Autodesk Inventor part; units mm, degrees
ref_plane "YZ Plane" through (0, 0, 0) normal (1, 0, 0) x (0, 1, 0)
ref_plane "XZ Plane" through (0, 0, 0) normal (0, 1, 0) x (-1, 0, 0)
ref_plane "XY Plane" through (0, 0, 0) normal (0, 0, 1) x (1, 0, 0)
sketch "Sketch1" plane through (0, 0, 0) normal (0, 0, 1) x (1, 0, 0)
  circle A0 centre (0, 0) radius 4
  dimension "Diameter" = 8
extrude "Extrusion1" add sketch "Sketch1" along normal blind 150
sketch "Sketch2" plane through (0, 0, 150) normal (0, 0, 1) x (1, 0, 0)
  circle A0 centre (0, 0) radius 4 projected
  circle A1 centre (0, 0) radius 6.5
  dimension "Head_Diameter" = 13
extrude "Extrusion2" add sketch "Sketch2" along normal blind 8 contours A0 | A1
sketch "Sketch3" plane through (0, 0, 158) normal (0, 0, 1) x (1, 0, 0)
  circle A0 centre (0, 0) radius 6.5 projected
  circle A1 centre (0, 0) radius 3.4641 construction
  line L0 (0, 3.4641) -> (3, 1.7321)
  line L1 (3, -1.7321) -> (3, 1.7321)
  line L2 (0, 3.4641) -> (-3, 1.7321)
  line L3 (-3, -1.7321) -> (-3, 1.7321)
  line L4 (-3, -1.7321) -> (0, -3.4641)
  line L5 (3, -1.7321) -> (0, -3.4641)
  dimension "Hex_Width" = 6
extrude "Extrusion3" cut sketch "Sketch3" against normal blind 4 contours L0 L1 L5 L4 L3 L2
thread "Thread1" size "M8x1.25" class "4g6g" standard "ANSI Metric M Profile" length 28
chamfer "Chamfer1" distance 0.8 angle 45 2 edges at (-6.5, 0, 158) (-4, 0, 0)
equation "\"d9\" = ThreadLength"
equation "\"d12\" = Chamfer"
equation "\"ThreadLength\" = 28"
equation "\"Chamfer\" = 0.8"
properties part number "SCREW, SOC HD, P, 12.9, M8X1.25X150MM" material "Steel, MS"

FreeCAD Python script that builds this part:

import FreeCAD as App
import Part
import Sketcher
from FreeCAD import Vector
Q = App.Units.Quantity


def edges_at(feature, points):
    """Names of the edges that pass closest to the given points."""
    edges = feature.Shape.Edges
    near = lambda p: min(range(len(edges)), key=lambda i: edges[i].distToShape(Part.Vertex(*p))[0])
    return sorted({f"Edge{near(p) + 1}" for p in points})


def add_polygon(sketch, points):
    """Adds a closed chain of lines whose ends are joined by coincident constraints."""
    first, n = sketch.GeometryCount, len(points)
    for a, b in zip(points, points[1:] + points[:1]):
        sketch.addGeometry(Part.LineSegment(App.Vector(*a, 0), App.Vector(*b, 0)), False)
    for i in range(n):
        sketch.addConstraint(Sketcher.Constraint("Coincident", first + i, 2, first + (i + 1) % n, 1))

doc = App.newDocument("Part")
body = doc.addObject("PartDesign::Body", "Body")

sketch1 = body.newObject("Sketcher::SketchObject", "Sketch")
sketch1.AttachmentSupport = (doc.getObject("XY_Plane"), [""])
sketch1.MapMode = "FlatFace"
sketch1.addGeometry(Part.Circle(Vector(0, 0, 0), Vector(0, 0, 1), 4), False)
sketch1.addConstraint([
    Sketcher.Constraint("Coincident", 0, 3, -1, 1),
    Sketcher.Constraint("Diameter", 0, 8.0),
])
pad1 = body.newObject("PartDesign::Pad", "Pad")
pad1.Profile = sketch1
pad1.Length = 150

sketch2 = body.newObject("Sketcher::SketchObject", "Sketch001")
sketch2.AttachmentSupport = (doc.getObject("XY_Plane"), [""])
sketch2.MapMode = "FlatFace"
sketch2.AttachmentOffset = App.Placement(Vector(0, 0, 150), App.Rotation())
sketch2.addGeometry(Part.Circle(Vector(0, 0, 0), Vector(0, 0, 1), 6), False)
sketch2.addConstraint([
    Sketcher.Constraint("Coincident", 0, 3, -1, 1),
    Sketcher.Constraint("Diameter", 0, 13.0),
])
pad2 = body.newObject("PartDesign::Pad", "Pad001")
pad2.Profile = sketch2
pad2.Length = 8

sketch3 = body.newObject("Sketcher::SketchObject", "Sketch002")
sketch3.AttachmentSupport = (doc.getObject("XY_Plane"), [""])
sketch3.MapMode = "FlatFace"
sketch3.AttachmentOffset = App.Placement(Vector(0, 0, 158), App.Rotation())
add_polygon(sketch3, [(3, 1.7), (0, 3.5), (-3, 1.7), (-3, -1.7), (0, -3.5), (3, -1.7)])
sketch3.addConstraint([
    Sketcher.Constraint("Vertical", 2),
    Sketcher.Constraint("Vertical", 5),
    Sketcher.Constraint("Symmetric", 0, 2, 3, 2, -1, 1),
    Sketcher.Constraint("Symmetric", 1, 2, 4, 2, -1, 1),
    Sketcher.Constraint("PointOnObject", 0, 2, -2),
    Sketcher.Constraint("Parallel", 0, 3),
    Sketcher.Constraint("Horizontal", 2, 2, 4, 2),
    Sketcher.Constraint("DistanceX", 2, 2, 4, 2, 6.0),
    Sketcher.Constraint("Angle", 0, Q("150.0007 deg")),
    Sketcher.Constraint("DistanceY", 2, 2, 2, 1, 3.4642),
])
pocket1 = body.newObject("PartDesign::Pocket", "Pocket")
pocket1.Profile = sketch3
pocket1.Length = 4
doc.recompute()

chamfer = body.newObject("PartDesign::Chamfer", "Chamfer")
chamfer.Base = (pocket1, edges_at(pocket1, [(-6.5, 0, 158), (-4, 0, 0)]))
chamfer.Size = 0.8

doc.recompute()
